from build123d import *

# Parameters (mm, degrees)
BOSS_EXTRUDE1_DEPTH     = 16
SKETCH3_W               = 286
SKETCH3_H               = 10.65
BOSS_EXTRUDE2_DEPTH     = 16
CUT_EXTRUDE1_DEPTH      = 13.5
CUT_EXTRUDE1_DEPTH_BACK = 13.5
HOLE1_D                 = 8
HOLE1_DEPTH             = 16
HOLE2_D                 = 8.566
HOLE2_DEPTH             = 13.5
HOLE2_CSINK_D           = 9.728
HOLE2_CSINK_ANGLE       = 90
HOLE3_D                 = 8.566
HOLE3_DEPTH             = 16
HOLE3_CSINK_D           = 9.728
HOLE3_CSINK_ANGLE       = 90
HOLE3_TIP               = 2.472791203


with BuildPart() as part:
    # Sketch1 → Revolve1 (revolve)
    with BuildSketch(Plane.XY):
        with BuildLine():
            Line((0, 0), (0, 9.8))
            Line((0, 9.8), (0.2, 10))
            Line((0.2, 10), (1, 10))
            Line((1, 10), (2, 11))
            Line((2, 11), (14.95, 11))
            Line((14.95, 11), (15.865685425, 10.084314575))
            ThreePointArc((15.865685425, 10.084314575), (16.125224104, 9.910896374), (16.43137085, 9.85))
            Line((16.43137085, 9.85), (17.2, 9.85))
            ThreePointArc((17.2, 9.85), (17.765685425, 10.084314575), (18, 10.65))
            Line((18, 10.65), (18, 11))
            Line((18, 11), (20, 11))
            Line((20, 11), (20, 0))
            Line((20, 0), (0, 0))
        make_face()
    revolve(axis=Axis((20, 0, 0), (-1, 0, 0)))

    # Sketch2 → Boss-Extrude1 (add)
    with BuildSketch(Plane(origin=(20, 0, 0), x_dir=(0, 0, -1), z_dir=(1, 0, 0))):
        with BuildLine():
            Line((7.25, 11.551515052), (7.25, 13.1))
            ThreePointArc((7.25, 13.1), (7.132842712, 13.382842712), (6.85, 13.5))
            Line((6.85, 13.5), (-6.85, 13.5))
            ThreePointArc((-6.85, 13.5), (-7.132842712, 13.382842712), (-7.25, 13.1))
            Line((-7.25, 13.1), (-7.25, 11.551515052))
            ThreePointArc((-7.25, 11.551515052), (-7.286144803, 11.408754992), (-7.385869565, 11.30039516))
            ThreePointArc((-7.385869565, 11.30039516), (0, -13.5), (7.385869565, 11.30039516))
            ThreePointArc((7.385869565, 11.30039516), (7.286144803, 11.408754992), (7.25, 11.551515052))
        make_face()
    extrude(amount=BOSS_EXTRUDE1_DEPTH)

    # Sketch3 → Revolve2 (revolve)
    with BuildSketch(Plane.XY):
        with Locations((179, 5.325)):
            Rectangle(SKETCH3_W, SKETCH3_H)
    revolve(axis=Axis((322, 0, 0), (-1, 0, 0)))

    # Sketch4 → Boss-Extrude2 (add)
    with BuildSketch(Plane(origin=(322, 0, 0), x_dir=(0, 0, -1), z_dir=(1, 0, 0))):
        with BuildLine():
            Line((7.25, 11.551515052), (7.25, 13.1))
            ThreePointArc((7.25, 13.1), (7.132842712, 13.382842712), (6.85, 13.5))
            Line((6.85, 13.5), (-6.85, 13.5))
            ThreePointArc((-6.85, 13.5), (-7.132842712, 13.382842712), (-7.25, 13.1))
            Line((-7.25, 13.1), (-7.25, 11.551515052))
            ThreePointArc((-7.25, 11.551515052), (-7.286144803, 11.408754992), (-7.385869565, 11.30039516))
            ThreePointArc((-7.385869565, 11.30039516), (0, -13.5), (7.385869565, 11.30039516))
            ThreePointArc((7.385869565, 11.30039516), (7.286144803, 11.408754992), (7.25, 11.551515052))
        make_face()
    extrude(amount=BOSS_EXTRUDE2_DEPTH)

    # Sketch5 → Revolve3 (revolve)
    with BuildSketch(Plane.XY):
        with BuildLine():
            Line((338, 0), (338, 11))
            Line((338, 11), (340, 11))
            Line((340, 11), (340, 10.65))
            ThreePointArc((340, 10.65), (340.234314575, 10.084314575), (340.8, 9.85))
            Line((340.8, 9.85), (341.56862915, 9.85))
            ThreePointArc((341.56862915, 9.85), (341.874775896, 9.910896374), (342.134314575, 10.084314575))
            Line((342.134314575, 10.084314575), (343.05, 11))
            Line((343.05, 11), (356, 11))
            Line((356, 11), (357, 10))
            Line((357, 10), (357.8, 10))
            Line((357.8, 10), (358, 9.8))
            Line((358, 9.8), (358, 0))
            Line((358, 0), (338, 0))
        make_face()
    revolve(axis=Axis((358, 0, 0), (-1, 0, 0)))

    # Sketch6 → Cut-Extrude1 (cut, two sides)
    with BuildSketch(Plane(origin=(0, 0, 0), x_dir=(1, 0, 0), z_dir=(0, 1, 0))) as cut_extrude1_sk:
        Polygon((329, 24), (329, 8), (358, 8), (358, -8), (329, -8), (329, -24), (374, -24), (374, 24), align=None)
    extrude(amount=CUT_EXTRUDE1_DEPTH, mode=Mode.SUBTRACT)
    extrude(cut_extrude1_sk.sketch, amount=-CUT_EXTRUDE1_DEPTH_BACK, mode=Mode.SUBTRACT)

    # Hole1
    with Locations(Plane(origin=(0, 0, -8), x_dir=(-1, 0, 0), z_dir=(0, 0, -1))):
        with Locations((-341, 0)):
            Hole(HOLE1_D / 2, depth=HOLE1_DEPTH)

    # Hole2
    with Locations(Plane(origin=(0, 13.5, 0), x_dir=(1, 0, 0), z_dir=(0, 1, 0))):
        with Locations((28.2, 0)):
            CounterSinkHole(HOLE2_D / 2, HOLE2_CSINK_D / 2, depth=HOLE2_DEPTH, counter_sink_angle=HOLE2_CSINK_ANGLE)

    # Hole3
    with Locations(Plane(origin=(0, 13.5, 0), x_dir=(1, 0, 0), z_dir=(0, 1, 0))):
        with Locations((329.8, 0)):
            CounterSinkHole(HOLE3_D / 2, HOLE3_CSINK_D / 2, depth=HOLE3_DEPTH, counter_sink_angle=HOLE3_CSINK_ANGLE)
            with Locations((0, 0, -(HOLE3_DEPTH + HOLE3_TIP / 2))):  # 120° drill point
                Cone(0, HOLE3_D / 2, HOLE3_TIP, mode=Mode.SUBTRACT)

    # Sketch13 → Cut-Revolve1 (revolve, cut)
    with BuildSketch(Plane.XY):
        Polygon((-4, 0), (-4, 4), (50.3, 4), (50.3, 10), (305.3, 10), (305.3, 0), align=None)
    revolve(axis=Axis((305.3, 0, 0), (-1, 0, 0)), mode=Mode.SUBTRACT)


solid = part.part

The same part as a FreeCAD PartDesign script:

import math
import FreeCAD as App
import Part
import Sketcher
from FreeCAD import Vector
Q = App.Units.Quantity

doc = App.newDocument("Part")
body = doc.addObject("PartDesign::Body", "Body")

sketch1 = body.newObject("Sketcher::SketchObject", "Sketch")
sketch1.AttachmentSupport = (doc.getObject("XY_Plane"), [""])
sketch1.MapMode = "FlatFace"
sketch1.addGeometry([
    Part.LineSegment(Vector(0, 9.8, 0), Vector(0, 0, 0)),
    Part.LineSegment(Vector(0, 0, 0), Vector(20, 0, 0)),
    Part.LineSegment(Vector(20, 0, 0), Vector(20, 11, 0)),
    Part.LineSegment(Vector(20, 11, 0), Vector(18, 11, 0)),
    Part.LineSegment(Vector(18, 11, 0), Vector(18, 10.65, 0)),
    Part.ArcOfCircle(Part.Circle(Vector(17.2, 10.65, 0), Vector(0, 0, 1), 0.8), math.radians(-90), math.radians(0)),
    Part.LineSegment(Vector(17.2, 9.85, 0), Vector(16.43, 9.85, 0)),
    Part.ArcOfCircle(Part.Circle(Vector(16.43, 10.65, 0), Vector(0, 0, 1), 0.8), math.radians(-135), math.radians(-90)),
    Part.LineSegment(Vector(15.87, 10.08, 0), Vector(14.95, 11, 0)),
    Part.LineSegment(Vector(14.95, 11, 0), Vector(2, 11, 0)),
    Part.LineSegment(Vector(2, 11, 0), Vector(1, 10, 0)),
    Part.LineSegment(Vector(1, 10, 0), Vector(0.2, 10, 0)),
    Part.LineSegment(Vector(0.2, 10, 0), Vector(0, 9.8, 0)),
], False)
sketch1.addConstraint([
    Sketcher.Constraint("Coincident", 0, 2, 1, 1),
    Sketcher.Constraint("Coincident", 1, 2, 2, 1),
    Sketcher.Constraint("Coincident", 2, 2, 3, 1),
    Sketcher.Constraint("Coincident", 3, 2, 4, 1),
    Sketcher.Constraint("Tangent", 4, 2, 5, 2),
    Sketcher.Constraint("Tangent", 5, 1, 6, 1),
    Sketcher.Constraint("Tangent", 6, 2, 7, 2),
    Sketcher.Constraint("Tangent", 7, 1, 8, 1),
    Sketcher.Constraint("Coincident", 8, 2, 9, 1),
    Sketcher.Constraint("Coincident", 9, 2, 10, 1),
    Sketcher.Constraint("Coincident", 10, 2, 11, 1),
    Sketcher.Constraint("Coincident", 11, 2, 12, 1),
    Sketcher.Constraint("Coincident", 12, 2, 0, 1),
    Sketcher.Constraint("Vertical", 0),
    Sketcher.Constraint("Horizontal", 1),
    Sketcher.Constraint("Vertical", 2),
    Sketcher.Constraint("Horizontal", 3),
    Sketcher.Constraint("Vertical", 4),
    Sketcher.Constraint("Horizontal", 6),
    Sketcher.Constraint("Horizontal", 9),
    Sketcher.Constraint("Horizontal", 11),
    Sketcher.Constraint("Coincident", 0, 2, -1, 1),
    Sketcher.Constraint("Equal", 5, 7),
    Sketcher.Constraint("Perpendicular", 8, 10),
    Sketcher.Constraint("Parallel", 10, 12),
    Sketcher.Constraint("Horizontal", 3, 2, 8, 2),
    Sketcher.Constraint("Radius", 5, Q("0.8 mm")),
    Sketcher.Constraint("DistanceX", 1, 1, 1, 2, Q("20 mm")),
    Sketcher.Constraint("DistanceX", 3, 2, 3, 1, Q("2 mm")),
    Sketcher.Constraint("DistanceY", 2, 1, 2, 2, Q("11 mm")),
    Sketcher.Constraint("Angle", 8, Q("135 deg")),
    Sketcher.Constraint("DistanceX", 11, 2, 11, 1, Q("0.8 mm")),
    Sketcher.Constraint("DistanceY", 0, 2, 0, 1, Q("9.8 mm")),
    Sketcher.Constraint("DistanceX", -1, 1, 10, 2, Q("1 mm")),
    Sketcher.Constraint("DistanceX", 9, 2, 9, 1, Q("12.95 mm")),
    Sketcher.Constraint("DistanceY", 4, 2, 4, 1, Q("0.35 mm")),
])
revolution = body.newObject("PartDesign::Revolution", "Revolution")
revolution.Profile = sketch1
revolution.ReferenceAxis = (sketch1, ["H_Axis"])
revolution.Angle = 360

sketch2 = body.newObject("Sketcher::SketchObject", "Sketch001")
sketch2.AttachmentSupport = (doc.getObject("YZ_Plane"), [""])
sketch2.MapMode = "FlatFace"
sketch2.AttachmentOffset = App.Placement(Vector(0, 0, 20), App.Rotation())
sketch2.addGeometry([
    Part.LineSegment(Vector(11.55, -7.25, 0), Vector(13.1, -7.25, 0)),
    Part.ArcOfCircle(Part.Circle(Vector(13.1, -6.85, 0), Vector(0, 0, 1), 0.4), math.radians(-90), math.radians(0)),
    Part.LineSegment(Vector(13.5, -6.85, 0), Vector(13.5, 6.85, 0)),
    Part.ArcOfCircle(Part.Circle(Vector(13.1, 6.85, 0), Vector(0, 0, 1), 0.4), math.radians(0), math.radians(90)),
    Part.LineSegment(Vector(13.1, 7.25, 0), Vector(11.55, 7.25, 0)),
    Part.ArcOfCircle(Part.Circle(Vector(11.55, 7.55, 0), Vector(0, 0, 1), 0.3), math.radians(-147), math.radians(-90)),
    Part.ArcOfCircle(Part.Circle(Vector(0, 0, 0), Vector(0, 0, 1), 13.5), math.radians(33), math.radians(327)),
    Part.ArcOfCircle(Part.Circle(Vector(11.55, -7.55, 0), Vector(0, 0, 1), 0.3), math.radians(90), math.radians(147)),
], False)
sketch2.addConstraint([
    Sketcher.Constraint("Tangent", 0, 2, 1, 1),
    Sketcher.Constraint("Tangent", 1, 2, 2, 1),
    Sketcher.Constraint("Tangent", 2, 2, 3, 1),
    Sketcher.Constraint("Tangent", 3, 2, 4, 1),
    Sketcher.Constraint("Tangent", 4, 2, 5, 2),
    Sketcher.Constraint("Tangent", 5, 1, 6, 1),
    Sketcher.Constraint("Tangent", 6, 2, 7, 2),
    Sketcher.Constraint("Tangent", 7, 1, 0, 1),
    Sketcher.Constraint("Horizontal", 0),
    Sketcher.Constraint("Vertical", 2),
    Sketcher.Constraint("Horizontal", 4),
    Sketcher.Constraint("Coincident", 6, 3, -1, 1),
    Sketcher.Constraint("Equal", 1, 3),
    Sketcher.Constraint("Equal", 5, 7),
    Sketcher.Constraint("Vertical", 5, 3, 7, 3),
    Sketcher.Constraint("Radius", 1, Q("0.4 mm")),
    Sketcher.Constraint("Radius", 5, Q("0.3 mm")),
    Sketcher.Constraint("Radius", 6, Q("13.5 mm")),
    Sketcher.Constraint("DistanceY", 2, 1, 2, 2, Q("13.7 mm")),
    Sketcher.Constraint("DistanceX", -1, 1, 1, 3, Q("13.1 mm")),
])
pad1 = body.newObject("PartDesign::Pad", "Pad")
pad1.Profile = sketch2
pad1.Length = 16

sketch3 = body.newObject("Sketcher::SketchObject", "Sketch002")
sketch3.AttachmentSupport = (doc.getObject("XY_Plane"), [""])
sketch3.MapMode = "FlatFace"
sketch3.addGeometry([
    Part.LineSegment(Vector(36, 11, 0), Vector(36, 0, 0)),
    Part.LineSegment(Vector(36, 0, 0), Vector(322, 0, 0)),
    Part.LineSegment(Vector(322, 0, 0), Vector(322, 11, 0)),
    Part.LineSegment(Vector(322, 11, 0), Vector(36, 11, 0)),
], False)
sketch3.addConstraint([
    Sketcher.Constraint("Coincident", 0, 2, 1, 1),
    Sketcher.Constraint("Coincident", 1, 2, 2, 1),
    Sketcher.Constraint("Coincident", 2, 2, 3, 1),
    Sketcher.Constraint("Coincident", 3, 2, 0, 1),
    Sketcher.Constraint("Vertical", 0),
    Sketcher.Constraint("Horizontal", 1),
    Sketcher.Constraint("Vertical", 2),
    Sketcher.Constraint("Horizontal", 3),
    Sketcher.Constraint("PointOnObject", 0, 2, -1),
    Sketcher.Constraint("DistanceX", 1, 1, 1, 2, Q("286 mm")),
    Sketcher.Constraint("DistanceX", -1, 1, 0, 2, Q("36 mm")),
    Sketcher.Constraint("DistanceY", 0, 2, 0, 1, Q("10.65 mm")),
])
revolution2 = body.newObject("PartDesign::Revolution", "Revolution001")
revolution2.Profile = sketch3
revolution2.ReferenceAxis = (sketch3, ["H_Axis"])
revolution2.Angle = 360

sketch4 = body.newObject("Sketcher::SketchObject", "Sketch003")
sketch4.AttachmentSupport = (doc.getObject("YZ_Plane"), [""])
sketch4.MapMode = "FlatFace"
sketch4.AttachmentOffset = App.Placement(Vector(0, 0, 322), App.Rotation())
sketch4.addGeometry([
    Part.LineSegment(Vector(11.55, -7.25, 0), Vector(13.1, -7.25, 0)),
    Part.ArcOfCircle(Part.Circle(Vector(13.1, -6.85, 0), Vector(0, 0, 1), 0.4), math.radians(-90), math.radians(0)),
    Part.LineSegment(Vector(13.5, -6.85, 0), Vector(13.5, 6.85, 0)),
    Part.ArcOfCircle(Part.Circle(Vector(13.1, 6.85, 0), Vector(0, 0, 1), 0.4), math.radians(0), math.radians(90)),
    Part.LineSegment(Vector(13.1, 7.25, 0), Vector(11.55, 7.25, 0)),
    Part.ArcOfCircle(Part.Circle(Vector(11.55, 7.55, 0), Vector(0, 0, 1), 0.3), math.radians(-147), math.radians(-90)),
    Part.ArcOfCircle(Part.Circle(Vector(0, 0, 0), Vector(0, 0, 1), 13.5), math.radians(33), math.radians(327)),
    Part.ArcOfCircle(Part.Circle(Vector(11.55, -7.55, 0), Vector(0, 0, 1), 0.3), math.radians(90), math.radians(147)),
], False)
sketch4.addConstraint([
    Sketcher.Constraint("Tangent", 0, 2, 1, 1),
    Sketcher.Constraint("Tangent", 1, 2, 2, 1),
    Sketcher.Constraint("Tangent", 2, 2, 3, 1),
    Sketcher.Constraint("Tangent", 3, 2, 4, 1),
    Sketcher.Constraint("Tangent", 4, 2, 5, 2),
    Sketcher.Constraint("Tangent", 5, 1, 6, 1),
    Sketcher.Constraint("Tangent", 6, 2, 7, 2),
    Sketcher.Constraint("Tangent", 7, 1, 0, 1),
    Sketcher.Constraint("Horizontal", 0),
    Sketcher.Constraint("Vertical", 2),
    Sketcher.Constraint("Horizontal", 4),
    Sketcher.Constraint("Coincident", 6, 3, -1, 1),
    Sketcher.Constraint("Equal", 1, 3),
    Sketcher.Constraint("Equal", 5, 7),
    Sketcher.Constraint("Vertical", 5, 3, 7, 3),
    Sketcher.Constraint("Radius", 1, Q("0.4 mm")),
    Sketcher.Constraint("Radius", 5, Q("0.3 mm")),
    Sketcher.Constraint("Radius", 6, Q("13.5 mm")),
    Sketcher.Constraint("DistanceY", 2, 1, 2, 2, Q("13.7 mm")),
    Sketcher.Constraint("DistanceX", -1, 1, 1, 3, Q("13.1 mm")),
])
pad2 = body.newObject("PartDesign::Pad", "Pad001")
pad2.Profile = sketch4
pad2.Length = 16

sketch5 = body.newObject("Sketcher::SketchObject", "Sketch004")
sketch5.AttachmentSupport = (doc.getObject("XY_Plane"), [""])
sketch5.MapMode = "FlatFace"
sketch5.addGeometry([
    Part.LineSegment(Vector(338, 11, 0), Vector(338, 0, 0)),
    Part.LineSegment(Vector(338, 0, 0), Vector(358, 0, 0)),
    Part.LineSegment(Vector(358, 0, 0), Vector(358, 9.8, 0)),
    Part.LineSegment(Vector(358, 9.8, 0), Vector(357.8, 10, 0)),
    Part.LineSegment(Vector(357.8, 10, 0), Vector(357, 10, 0)),
    Part.LineSegment(Vector(357, 10, 0), Vector(356, 11, 0)),
    Part.LineSegment(Vector(356, 11, 0), Vector(343.05, 11, 0)),
    Part.LineSegment(Vector(343.05, 11, 0), Vector(342.13, 10.08, 0)),
    Part.ArcOfCircle(Part.Circle(Vector(341.57, 10.65, 0), Vector(0, 0, 1), 0.8), math.radians(-90), math.radians(-45)),
    Part.LineSegment(Vector(341.57, 9.85, 0), Vector(340.8, 9.85, 0)),
    Part.ArcOfCircle(Part.Circle(Vector(340.8, 10.65, 0), Vector(0, 0, 1), 0.8), math.radians(180), math.radians(270)),
    Part.LineSegment(Vector(340, 10.65, 0), Vector(340, 11, 0)),
    Part.LineSegment(Vector(340, 11, 0), Vector(338, 11, 0)),
], False)
sketch5.addConstraint([
    Sketcher.Constraint("Coincident", 0, 2, 1, 1),
    Sketcher.Constraint("Coincident", 1, 2, 2, 1),
    Sketcher.Constraint("Coincident", 2, 2, 3, 1),
    Sketcher.Constraint("Coincident", 3, 2, 4, 1),
    Sketcher.Constraint("Coincident", 4, 2, 5, 1),
    Sketcher.Constraint("Coincident", 5, 2, 6, 1),
    Sketcher.Constraint("Coincident", 6, 2, 7, 1),
    Sketcher.Constraint("Tangent", 7, 2, 8, 2),
    Sketcher.Constraint("Tangent", 8, 1, 9, 1),
    Sketcher.Constraint("Tangent", 9, 2, 10, 2),
    Sketcher.Constraint("Tangent", 10, 1, 11, 1),
    Sketcher.Constraint("Coincident", 11, 2, 12, 1),
    Sketcher.Constraint("Coincident", 12, 2, 0, 1),
    Sketcher.Constraint("Vertical", 0),
    Sketcher.Constraint("Horizontal", 1),
    Sketcher.Constraint("Vertical", 2),
    Sketcher.Constraint("Horizontal", 4),
    Sketcher.Constraint("Horizontal", 6),
    Sketcher.Constraint("Horizontal", 9),
    Sketcher.Constraint("Vertical", 11),
    Sketcher.Constraint("Horizontal", 12),
    Sketcher.Constraint("Equal", 8, 10),
    Sketcher.Constraint("PointOnObject", 0, 2, -1),
    Sketcher.Constraint("Parallel", 3, 5),
    Sketcher.Constraint("Perpendicular", 5, 7),
    Sketcher.Constraint("Horizontal", 6, 2, 11, 2),
    Sketcher.Constraint("Radius", 8, Q("0.8 mm")),
    Sketcher.Constraint("DistanceX", 1, 1, 1, 2, Q("20 mm")),
    Sketcher.Constraint("DistanceX", 12, 2, 12, 1, Q("2 mm")),
    Sketcher.Constraint("DistanceY", 0, 2, 0, 1, Q("11 mm")),
    Sketcher.Constraint("Angle", 3, Q("135 deg")),
    Sketcher.Constraint("DistanceX", 4, 2, 4, 1, Q("0.8 mm")),
    Sketcher.Constraint("DistanceY", 2, 1, 2, 2, Q("9.8 mm")),
    Sketcher.Constraint("DistanceX", -1, 1, 0, 2, Q("338 mm")),
    Sketcher.Constraint("DistanceY", -1, 1, 3, 2, Q("10 mm")),
    Sketcher.Constraint("DistanceX", 6, 2, 6, 1, Q("12.95 mm")),
    Sketcher.Constraint("DistanceY", 11, 1, 11, 2, Q("0.35 mm")),
])
revolution3 = body.newObject("PartDesign::Revolution", "Revolution002")
revolution3.Profile = sketch5
revolution3.ReferenceAxis = (sketch5, ["H_Axis"])
revolution3.Angle = 360

sketch6 = body.newObject("Sketcher::SketchObject", "Sketch005")
sketch6.AttachmentSupport = (doc.getObject("XZ_Plane"), [""])
sketch6.MapMode = "FlatFace"
sketch6.addGeometry([
    Part.LineSegment(Vector(329, -24, 0), Vector(329, -8, 0)),
    Part.LineSegment(Vector(329, -8, 0), Vector(358, -8, 0)),
    Part.LineSegment(Vector(358, -8, 0), Vector(358, 8, 0)),
    Part.LineSegment(Vector(358, 8, 0), Vector(329, 8, 0)),
    Part.LineSegment(Vector(329, 8, 0), Vector(329, 24, 0)),
    Part.LineSegment(Vector(329, 24, 0), Vector(374, 24, 0)),
    Part.LineSegment(Vector(374, 24, 0), Vector(374, -24, 0)),
    Part.LineSegment(Vector(374, -24, 0), Vector(329, -24, 0)),
], False)
sketch6.addConstraint([
    Sketcher.Constraint("Coincident", 0, 2, 1, 1),
    Sketcher.Constraint("Coincident", 1, 2, 2, 1),
    Sketcher.Constraint("Coincident", 2, 2, 3, 1),
    Sketcher.Constraint("Coincident", 3, 2, 4, 1),
    Sketcher.Constraint("Coincident", 4, 2, 5, 1),
    Sketcher.Constraint("Coincident", 5, 2, 6, 1),
    Sketcher.Constraint("Coincident", 6, 2, 7, 1),
    Sketcher.Constraint("Coincident", 7, 2, 0, 1),
    Sketcher.Constraint("Vertical", 0),
    Sketcher.Constraint("Horizontal", 1),
    Sketcher.Constraint("Vertical", 2),
    Sketcher.Constraint("Horizontal", 3),
    Sketcher.Constraint("Vertical", 4),
    Sketcher.Constraint("Horizontal", 5),
    Sketcher.Constraint("Vertical", 6),
    Sketcher.Constraint("Horizontal", 7),
    Sketcher.Constraint("Symmetric", 0, 2, 3, 2, -1),
    Sketcher.Constraint("Equal", 0, 2),
    Sketcher.Constraint("Equal", 2, 4),
    Sketcher.Constraint("DistanceX", 1, 1, 1, 2, Q("29 mm")),
    Sketcher.Constraint("DistanceX", 5, 1, 5, 2, Q("45 mm")),
    Sketcher.Constraint("DistanceY", 0, 1, 0, 2, Q("16 mm")),
    Sketcher.Constraint("DistanceX", -1, 1, 0, 2, Q("329 mm")),
])
pocket1 = body.newObject("PartDesign::Pocket", "Pocket")
pocket1.Profile = sketch6
pocket1.Type = "ThroughAll"
pocket1.Midplane = True

sketch7 = body.newObject("Sketcher::SketchObject", "Sketch006")
sketch7.AttachmentSupport = (doc.getObject("XY_Plane"), [""])
sketch7.MapMode = "FlatFace"
sketch7.AttachmentOffset = App.Placement(Vector(0, 0, -8), App.Rotation())
sketch7.addGeometry(Part.Circle(Vector(341, 0, 0), Vector(0, 0, 1), 4), False)
sketch7.addConstraint([
    Sketcher.Constraint("PointOnObject", 0, 3, -1),
    Sketcher.Constraint("Diameter", 0, Q("8 mm")),
    Sketcher.Constraint("DistanceX", -1, 1, 0, 3, Q("341 mm")),
])
doc.recompute()
hole = body.newObject("PartDesign::Hole", "Hole")
hole.Profile = sketch7
hole.ThreadType = "None"
hole.Diameter = 8
hole.DepthType = "Dimension"
hole.Depth = 16
hole.DrillPoint = "Flat"
hole.Reversed = True

sketch8 = body.newObject("Sketcher::SketchObject", "Sketch007")
sketch8.AttachmentSupport = (doc.getObject("XZ_Plane"), [""])
sketch8.MapMode = "FlatFace"
sketch8.AttachmentOffset = App.Placement(Vector(0, 0, -13.5), App.Rotation())
sketch8.addGeometry(Part.Circle(Vector(28.2, 0, 0), Vector(0, 0, 1), 4.3), False)
sketch8.addConstraint([
    Sketcher.Constraint("PointOnObject", 0, 3, -1),
    Sketcher.Constraint("Diameter", 0, Q("8.566 mm")),
    Sketcher.Constraint("DistanceX", -1, 1, 0, 3, Q("28.2 mm")),
])
doc.recompute()
hole2 = body.newObject("PartDesign::Hole", "Hole001")
hole2.Profile = sketch8
hole2.ThreadType = "None"
hole2.Diameter = 8.566
hole2.DepthType = "Dimension"
hole2.Depth = 13.5
hole2.DrillPoint = "Flat"
hole2.HoleCutType = "Countersink"
hole2.HoleCutDiameter = 9.728
hole2.HoleCutCountersinkAngle = 90
hole2.Reversed = True

sketch9 = body.newObject("Sketcher::SketchObject", "Sketch008")
sketch9.AttachmentSupport = (doc.getObject("XZ_Plane"), [""])
sketch9.MapMode = "FlatFace"
sketch9.AttachmentOffset = App.Placement(Vector(0, 0, -13.5), App.Rotation())
sketch9.addGeometry(Part.Circle(Vector(329.8, 0, 0), Vector(0, 0, 1), 4.3), False)
sketch9.addConstraint([
    Sketcher.Constraint("PointOnObject", 0, 3, -1),
    Sketcher.Constraint("Diameter", 0, Q("8.566 mm")),
    Sketcher.Constraint("DistanceX", -1, 1, 0, 3, Q("329.8 mm")),
])
doc.recompute()
hole3 = body.newObject("PartDesign::Hole", "Hole002")
hole3.Profile = sketch9
hole3.ThreadType = "None"
hole3.Diameter = 8.566
hole3.DepthType = "Dimension"
hole3.Depth = 16
hole3.DrillPoint = "Angled"
hole3.DrillPointAngle = 120
hole3.HoleCutType = "Countersink"
hole3.HoleCutDiameter = 9.728
hole3.HoleCutCountersinkAngle = 90
hole3.Reversed = True

sketch10 = body.newObject("Sketcher::SketchObject", "Sketch009")
sketch10.AttachmentSupport = (doc.getObject("XY_Plane"), [""])
sketch10.MapMode = "FlatFace"
sketch10.addGeometry([
    Part.LineSegment(Vector(-4, 4, 0), Vector(-4, 0, 0)),
    Part.LineSegment(Vector(-4, 0, 0), Vector(305.3, 0, 0)),
    Part.LineSegment(Vector(305.3, 0, 0), Vector(305.3, 10, 0)),
    Part.LineSegment(Vector(305.3, 10, 0), Vector(50.3, 10, 0)),
    Part.LineSegment(Vector(50.3, 10, 0), Vector(50.3, 4, 0)),
    Part.LineSegment(Vector(50.3, 4, 0), Vector(-4, 4, 0)),
], False)
sketch10.addConstraint([
    Sketcher.Constraint("Coincident", 0, 2, 1, 1),
    Sketcher.Constraint("Coincident", 1, 2, 2, 1),
    Sketcher.Constraint("Coincident", 2, 2, 3, 1),
    Sketcher.Constraint("Coincident", 3, 2, 4, 1),
    Sketcher.Constraint("Coincident", 4, 2, 5, 1),
    Sketcher.Constraint("Coincident", 5, 2, 0, 1),
    Sketcher.Constraint("Vertical", 0),
    Sketcher.Constraint("Horizontal", 1),
    Sketcher.Constraint("Vertical", 2),
    Sketcher.Constraint("Horizontal", 3),
    Sketcher.Constraint("Vertical", 4),
    Sketcher.Constraint("Horizontal", 5),
    Sketcher.Constraint("PointOnObject", 0, 2, -1),
    Sketcher.Constraint("DistanceX", 3, 2, 3, 1, Q("255 mm")),
    Sketcher.Constraint("DistanceY", 0, 2, 0, 1, Q("4 mm")),
    Sketcher.Constraint("DistanceY", 2, 1, 2, 2, Q("10 mm")),
    Sketcher.Constraint("DistanceX", 1, 1, 1, 2, Q("309.3 mm")),
    Sketcher.Constraint("DistanceX", 0, 2, -1, 1, Q("4 mm")),
])
groove = body.newObject("PartDesign::Groove", "Groove")
groove.Profile = sketch10
groove.ReferenceAxis = (sketch10, ["H_Axis"])
groove.Angle = 360

doc.recompute()
